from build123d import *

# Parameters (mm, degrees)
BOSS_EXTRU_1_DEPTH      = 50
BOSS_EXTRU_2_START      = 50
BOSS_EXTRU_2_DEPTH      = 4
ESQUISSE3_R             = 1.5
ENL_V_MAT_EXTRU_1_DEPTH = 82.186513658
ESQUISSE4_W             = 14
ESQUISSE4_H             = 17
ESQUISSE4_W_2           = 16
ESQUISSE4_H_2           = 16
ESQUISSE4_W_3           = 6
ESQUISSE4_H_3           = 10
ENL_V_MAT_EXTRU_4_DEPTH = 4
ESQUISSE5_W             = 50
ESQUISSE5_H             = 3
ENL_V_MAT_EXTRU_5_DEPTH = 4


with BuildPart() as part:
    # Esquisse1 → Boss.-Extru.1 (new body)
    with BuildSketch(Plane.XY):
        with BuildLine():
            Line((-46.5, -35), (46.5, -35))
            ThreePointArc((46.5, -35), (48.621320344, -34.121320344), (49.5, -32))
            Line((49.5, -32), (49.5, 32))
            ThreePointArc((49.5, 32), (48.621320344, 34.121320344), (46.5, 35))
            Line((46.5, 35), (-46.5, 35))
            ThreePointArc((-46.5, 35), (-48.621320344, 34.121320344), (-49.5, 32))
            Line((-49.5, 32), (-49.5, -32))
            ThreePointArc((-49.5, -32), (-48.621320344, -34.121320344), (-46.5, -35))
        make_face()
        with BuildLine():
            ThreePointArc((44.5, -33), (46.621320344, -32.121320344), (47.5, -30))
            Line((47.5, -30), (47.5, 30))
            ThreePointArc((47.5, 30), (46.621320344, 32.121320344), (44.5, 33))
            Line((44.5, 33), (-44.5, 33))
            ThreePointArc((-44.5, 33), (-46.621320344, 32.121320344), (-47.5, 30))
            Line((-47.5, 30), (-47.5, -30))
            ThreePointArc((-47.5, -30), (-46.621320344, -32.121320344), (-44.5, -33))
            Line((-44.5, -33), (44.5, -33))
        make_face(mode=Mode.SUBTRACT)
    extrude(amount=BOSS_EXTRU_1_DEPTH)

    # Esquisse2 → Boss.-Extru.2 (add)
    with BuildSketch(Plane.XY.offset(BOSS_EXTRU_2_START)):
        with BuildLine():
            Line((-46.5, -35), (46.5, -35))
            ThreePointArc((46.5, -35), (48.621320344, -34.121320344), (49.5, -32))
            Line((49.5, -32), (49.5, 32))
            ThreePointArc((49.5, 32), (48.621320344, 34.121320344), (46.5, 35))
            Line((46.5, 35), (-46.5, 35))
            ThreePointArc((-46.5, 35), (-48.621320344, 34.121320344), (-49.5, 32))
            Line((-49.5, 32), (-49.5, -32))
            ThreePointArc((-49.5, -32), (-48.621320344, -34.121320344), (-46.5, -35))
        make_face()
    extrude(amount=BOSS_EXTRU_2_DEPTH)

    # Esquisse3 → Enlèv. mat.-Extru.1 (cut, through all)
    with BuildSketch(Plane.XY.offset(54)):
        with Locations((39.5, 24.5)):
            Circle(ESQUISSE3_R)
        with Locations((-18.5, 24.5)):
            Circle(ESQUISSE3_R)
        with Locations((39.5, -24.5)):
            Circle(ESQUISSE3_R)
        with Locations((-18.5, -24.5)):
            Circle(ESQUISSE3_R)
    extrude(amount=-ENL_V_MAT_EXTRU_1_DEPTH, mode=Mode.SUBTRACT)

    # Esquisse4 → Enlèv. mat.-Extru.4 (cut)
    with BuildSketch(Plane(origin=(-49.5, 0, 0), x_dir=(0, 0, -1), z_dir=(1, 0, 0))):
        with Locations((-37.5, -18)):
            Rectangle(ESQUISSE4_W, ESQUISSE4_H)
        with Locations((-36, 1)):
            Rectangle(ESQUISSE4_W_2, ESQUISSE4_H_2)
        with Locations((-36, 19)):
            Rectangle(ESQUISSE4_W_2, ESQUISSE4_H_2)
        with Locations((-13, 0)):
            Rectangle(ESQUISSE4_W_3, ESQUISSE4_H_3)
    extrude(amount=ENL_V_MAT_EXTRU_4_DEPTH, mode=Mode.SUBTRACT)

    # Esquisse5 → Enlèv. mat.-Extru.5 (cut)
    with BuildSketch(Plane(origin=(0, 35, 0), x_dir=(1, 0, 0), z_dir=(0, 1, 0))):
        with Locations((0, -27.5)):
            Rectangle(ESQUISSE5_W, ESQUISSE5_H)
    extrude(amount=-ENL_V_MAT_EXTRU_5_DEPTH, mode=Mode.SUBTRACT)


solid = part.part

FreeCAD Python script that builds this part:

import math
import FreeCAD as App
import Part
import Sketcher

doc = App.newDocument("Part")
body = doc.addObject("PartDesign::Body", "Body")

sketch1 = body.newObject("Sketcher::SketchObject", "Sketch")
sketch1.AttachmentSupport = (doc.getObject("XY_Plane"), [""])
sketch1.MapMode = "FlatFace"
sketch1.addGeometry([
    Part.LineSegment(App.Vector(-46.5, -35, 0), App.Vector(46.5, -35, 0)),
    Part.ArcOfCircle(Part.Circle(App.Vector(46.5, -32, 0), App.Vector(0, 0, 1), 3), math.radians(-90), math.radians(0)),
    Part.LineSegment(App.Vector(49.5, -32, 0), App.Vector(49.5, 32, 0)),
    Part.ArcOfCircle(Part.Circle(App.Vector(46.5, 32, 0), App.Vector(0, 0, 1), 3), math.radians(0), math.radians(90)),
    Part.LineSegment(App.Vector(46.5, 35, 0), App.Vector(-46.5, 35, 0)),
    Part.ArcOfCircle(Part.Circle(App.Vector(-46.5, 32, 0), App.Vector(0, 0, 1), 3), math.radians(90), math.radians(180)),
    Part.LineSegment(App.Vector(-49.5, 32, 0), App.Vector(-49.5, -32, 0)),
    Part.ArcOfCircle(Part.Circle(App.Vector(-46.5, -32, 0), App.Vector(0, 0, 1), 3), math.radians(180), math.radians(270)),
    Part.ArcOfCircle(Part.Circle(App.Vector(44.5, -30, 0), App.Vector(0, 0, 1), 3), math.radians(-90), math.radians(0)),
    Part.LineSegment(App.Vector(44.5, -33, 0), App.Vector(-44.5, -33, 0)),
    Part.ArcOfCircle(Part.Circle(App.Vector(-44.5, -30, 0), App.Vector(0, 0, 1), 3), math.radians(180), math.radians(270)),
    Part.LineSegment(App.Vector(-47.5, -30, 0), App.Vector(-47.5, 30, 0)),
    Part.ArcOfCircle(Part.Circle(App.Vector(-44.5, 30, 0), App.Vector(0, 0, 1), 3), math.radians(90), math.radians(180)),
    Part.LineSegment(App.Vector(-44.5, 33, 0), App.Vector(44.5, 33, 0)),
    Part.ArcOfCircle(Part.Circle(App.Vector(44.5, 30, 0), App.Vector(0, 0, 1), 3), math.radians(0), math.radians(90)),
    Part.LineSegment(App.Vector(47.5, 30, 0), App.Vector(47.5, -30, 0)),
], False)
sketch1.addConstraint([
    Sketcher.Constraint("Tangent", 0, 2, 1, 1),
    Sketcher.Constraint("Tangent", 1, 2, 2, 1),
    Sketcher.Constraint("Tangent", 2, 2, 3, 1),
    Sketcher.Constraint("Tangent", 3, 2, 4, 1),
    Sketcher.Constraint("Tangent", 4, 2, 5, 1),
    Sketcher.Constraint("Tangent", 5, 2, 6, 1),
    Sketcher.Constraint("Tangent", 6, 2, 7, 1),
    Sketcher.Constraint("Tangent", 7, 2, 0, 1),
    Sketcher.Constraint("Tangent", 8, 1, 9, 1),
    Sketcher.Constraint("Tangent", 9, 2, 10, 2),
    Sketcher.Constraint("Tangent", 10, 1, 11, 1),
    Sketcher.Constraint("Tangent", 11, 2, 12, 2),
    Sketcher.Constraint("Tangent", 12, 1, 13, 1),
    Sketcher.Constraint("Tangent", 13, 2, 14, 2),
    Sketcher.Constraint("Tangent", 14, 1, 15, 1),
    Sketcher.Constraint("Tangent", 15, 2, 8, 2),
    Sketcher.Constraint("Horizontal", 0),
    Sketcher.Constraint("Vertical", 2),
    Sketcher.Constraint("Horizontal", 4),
    Sketcher.Constraint("Vertical", 6),
    Sketcher.Constraint("Horizontal", 9),
    Sketcher.Constraint("Vertical", 11),
    Sketcher.Constraint("Horizontal", 13),
    Sketcher.Constraint("Vertical", 15),
    Sketcher.Constraint("Equal", 1, 3),
    Sketcher.Constraint("Equal", 3, 5),
    Sketcher.Constraint("Equal", 5, 7),
    Sketcher.Constraint("Equal", 7, 8),
    Sketcher.Constraint("Equal", 8, 10),
    Sketcher.Constraint("Equal", 10, 12),
    Sketcher.Constraint("Equal", 12, 14),
    Sketcher.Constraint("Symmetric", 1, 3, 5, 3, -1, 1),
    Sketcher.Constraint("Symmetric", 8, 3, 12, 3, -1, 1),
    Sketcher.Constraint("Radius", 1, 3.0),
    Sketcher.Constraint("DistanceX", 0, 1, 0, 2, 93.0),
    Sketcher.Constraint("DistanceX", 9, 2, 9, 1, 89.0),
    Sketcher.Constraint("DistanceY", 2, 1, 2, 2, 64.0),
    Sketcher.Constraint("DistanceY", 11, 1, 11, 2, 60.0),
])
pad1 = body.newObject("PartDesign::Pad", "Pad")
pad1.Profile = sketch1
pad1.Length = 50

sketch2 = body.newObject("Sketcher::SketchObject", "Sketch001")
sketch2.AttachmentSupport = (doc.getObject("XY_Plane"), [""])
sketch2.MapMode = "FlatFace"
sketch2.AttachmentOffset = App.Placement(App.Vector(0, 0, 50), App.Rotation())
sketch2.addGeometry([
    Part.LineSegment(App.Vector(-46.5, -35, 0), App.Vector(46.5, -35, 0)),
    Part.ArcOfCircle(Part.Circle(App.Vector(46.5, -32, 0), App.Vector(0, 0, 1), 3), math.radians(-90), math.radians(0)),
    Part.LineSegment(App.Vector(49.5, -32, 0), App.Vector(49.5, 32, 0)),
    Part.ArcOfCircle(Part.Circle(App.Vector(46.5, 32, 0), App.Vector(0, 0, 1), 3), math.radians(0), math.radians(90)),
    Part.LineSegment(App.Vector(46.5, 35, 0), App.Vector(-46.5, 35, 0)),
    Part.ArcOfCircle(Part.Circle(App.Vector(-46.5, 32, 0), App.Vector(0, 0, 1), 3), math.radians(90), math.radians(180)),
    Part.LineSegment(App.Vector(-49.5, 32, 0), App.Vector(-49.5, -32, 0)),
    Part.ArcOfCircle(Part.Circle(App.Vector(-46.5, -32, 0), App.Vector(0, 0, 1), 3), math.radians(180), math.radians(270)),
], False)
sketch2.addConstraint([
    Sketcher.Constraint("Tangent", 0, 2, 1, 1),
    Sketcher.Constraint("Tangent", 1, 2, 2, 1),
    Sketcher.Constraint("Tangent", 2, 2, 3, 1),
    Sketcher.Constraint("Tangent", 3, 2, 4, 1),
    Sketcher.Constraint("Tangent", 4, 2, 5, 1),
    Sketcher.Constraint("Tangent", 5, 2, 6, 1),
    Sketcher.Constraint("Tangent", 6, 2, 7, 1),
    Sketcher.Constraint("Tangent", 7, 2, 0, 1),
    Sketcher.Constraint("Horizontal", 0),
    Sketcher.Constraint("Vertical", 2),
    Sketcher.Constraint("Horizontal", 4),
    Sketcher.Constraint("Vertical", 6),
    Sketcher.Constraint("Equal", 1, 3),
    Sketcher.Constraint("Equal", 3, 5),
    Sketcher.Constraint("Equal", 5, 7),
    Sketcher.Constraint("Symmetric", 1, 3, 5, 3, -1, 1),
    Sketcher.Constraint("Radius", 1, 3.0),
    Sketcher.Constraint("DistanceX", 0, 1, 0, 2, 93.0),
    Sketcher.Constraint("DistanceY", 2, 1, 2, 2, 64.0),
])
pad2 = body.newObject("PartDesign::Pad", "Pad001")
pad2.Profile = sketch2
pad2.Length = 4

sketch3 = body.newObject("Sketcher::SketchObject", "Sketch002")
sketch3.AttachmentSupport = (doc.getObject("XY_Plane"), [""])
sketch3.MapMode = "FlatFace"
sketch3.AttachmentOffset = App.Placement(App.Vector(0, 0, 54), App.Rotation())
sketch3.addGeometry([
    Part.Circle(App.Vector(39.5, 24.5, 0), App.Vector(0, 0, 1), 1.5),
    Part.Circle(App.Vector(-18.5, 24.5, 0), App.Vector(0, 0, 1), 1.5),
    Part.Circle(App.Vector(39.5, -24.5, 0), App.Vector(0, 0, 1), 1.5),
    Part.Circle(App.Vector(-18.5, -24.5, 0), App.Vector(0, 0, 1), 1.5),
], False)
sketch3.addConstraint([
    Sketcher.Constraint("Equal", 0, 1),
    Sketcher.Constraint("Equal", 1, 2),
    Sketcher.Constraint("Equal", 2, 3),
    Sketcher.Constraint("Symmetric", 0, 3, 2, 3, -1),
    Sketcher.Constraint("Symmetric", 1, 3, 3, 3, -1),
    Sketcher.Constraint("Horizontal", 0, 3, 1, 3),
    Sketcher.Constraint("Diameter", 0, 3.0),
    Sketcher.Constraint("DistanceX", 1, 3, 0, 3, 58.0),
    Sketcher.Constraint("DistanceY", 2, 3, 0, 3, 49.0),
    Sketcher.Constraint("DistanceX", -1, 1, 0, 3, 39.5),
])
pocket1 = body.newObject("PartDesign::Pocket", "Pocket")
pocket1.Profile = sketch3
pocket1.Type = "ThroughAll"

sketch4 = body.newObject("Sketcher::SketchObject", "Sketch003")
sketch4.AttachmentSupport = (doc.getObject("YZ_Plane"), [""])
sketch4.MapMode = "FlatFace"
sketch4.AttachmentOffset = App.Placement(App.Vector(0, 0, -49.5), App.Rotation())
sketch4.addGeometry([
    Part.LineSegment(App.Vector(-10, 44, 0), App.Vector(-26, 44, 0)),
    Part.LineSegment(App.Vector(-26, 44, 0), App.Vector(-26, 30, 0)),
    Part.LineSegment(App.Vector(-26, 30, 0), App.Vector(-10, 30, 0)),
    Part.LineSegment(App.Vector(-10, 30, 0), App.Vector(-10, 44, 0)),
    Part.LineSegment(App.Vector(9, 44, 0), App.Vector(-7, 44, 0)),
    Part.LineSegment(App.Vector(-7, 44, 0), App.Vector(-7, 28, 0)),
    Part.LineSegment(App.Vector(-7, 28, 0), App.Vector(9, 28, 0)),
    Part.LineSegment(App.Vector(9, 28, 0), App.Vector(9, 44, 0)),
    Part.LineSegment(App.Vector(27, 44, 0), App.Vector(11, 44, 0)),
    Part.LineSegment(App.Vector(11, 44, 0), App.Vector(11, 28, 0)),
    Part.LineSegment(App.Vector(11, 28, 0), App.Vector(27, 28, 0)),
    Part.LineSegment(App.Vector(27, 28, 0), App.Vector(27, 44, 0)),
    Part.LineSegment(App.Vector(5, 16, 0), App.Vector(-5, 16, 0)),
    Part.LineSegment(App.Vector(-5, 16, 0), App.Vector(-5, 10, 0)),
    Part.LineSegment(App.Vector(-5, 10, 0), App.Vector(5, 10, 0)),
    Part.LineSegment(App.Vector(5, 10, 0), App.Vector(5, 16, 0)),
], False)
sketch4.addConstraint([
    Sketcher.Constraint("Coincident", 0, 2, 1, 1),
    Sketcher.Constraint("Coincident", 1, 2, 2, 1),
    Sketcher.Constraint("Coincident", 2, 2, 3, 1),
    Sketcher.Constraint("Coincident", 3, 2, 0, 1),
    Sketcher.Constraint("Coincident", 4, 2, 5, 1),
    Sketcher.Constraint("Coincident", 5, 2, 6, 1),
    Sketcher.Constraint("Coincident", 6, 2, 7, 1),
    Sketcher.Constraint("Coincident", 7, 2, 4, 1),
    Sketcher.Constraint("Coincident", 8, 2, 9, 1),
    Sketcher.Constraint("Coincident", 9, 2, 10, 1),
    Sketcher.Constraint("Coincident", 10, 2, 11, 1),
    Sketcher.Constraint("Coincident", 11, 2, 8, 1),
    Sketcher.Constraint("Coincident", 12, 2, 13, 1),
    Sketcher.Constraint("Coincident", 13, 2, 14, 1),
    Sketcher.Constraint("Coincident", 14, 2, 15, 1),
    Sketcher.Constraint("Coincident", 15, 2, 12, 1),
    Sketcher.Constraint("Horizontal", 0),
    Sketcher.Constraint("Vertical", 1),
    Sketcher.Constraint("Horizontal", 2),
    Sketcher.Constraint("Vertical", 3),
    Sketcher.Constraint("Horizontal", 4),
    Sketcher.Constraint("Vertical", 5),
    Sketcher.Constraint("Horizontal", 6),
    Sketcher.Constraint("Vertical", 7),
    Sketcher.Constraint("Horizontal", 8),
    Sketcher.Constraint("Vertical", 9),
    Sketcher.Constraint("Horizontal", 10),
    Sketcher.Constraint("Vertical", 11),
    Sketcher.Constraint("Horizontal", 12),
    Sketcher.Constraint("Vertical", 13),
    Sketcher.Constraint("Horizontal", 14),
    Sketcher.Constraint("Vertical", 15),
    Sketcher.Constraint("Horizontal", 7, 2, 8, 2),
    Sketcher.Constraint("Horizontal", 6, 2, 9, 2),
    Sketcher.Constraint("Equal", 6, 8),
    Sketcher.Constraint("Equal", 10, 5),
    Sketcher.Constraint("DistanceX", 0, 2, 0, 1, 17.0),
    Sketcher.Constraint("DistanceX", 4, 2, 4, 1, 16.0),
    Sketcher.Constraint("DistanceX", 12, 2, 12, 1, 10.0),
    Sketcher.Constraint("DistanceY", 1, 2, 1, 1, 14.0),
    Sketcher.Constraint("DistanceY", 13, 2, 13, 1, 6.0),
    Sketcher.Constraint("DistanceX", 4, 2, -1, 1, 7.0),
    Sketcher.Constraint("DistanceY", -1, 1, 4, 2, 44.0),
    Sketcher.Constraint("DistanceX", -1, 1, 8, 2, 11.0),
    Sketcher.Constraint("DistanceX", 12, 2, -1, 1, 5.0),
    Sketcher.Constraint("DistanceY", -1, 1, 12, 2, 16.0),
    Sketcher.Constraint("DistanceX", 0, 2, -1, 1, 26.5),
    Sketcher.Constraint("DistanceY", -1, 1, 0, 2, 44.5),
])
pocket2 = body.newObject("PartDesign::Pocket", "Pocket001")
pocket2.Profile = sketch4
pocket2.Length = 4
pocket2.Reversed = True

sketch5 = body.newObject("Sketcher::SketchObject", "Sketch004")
sketch5.AttachmentSupport = (doc.getObject("XZ_Plane"), [""])
sketch5.MapMode = "FlatFace"
sketch5.AttachmentOffset = App.Placement(App.Vector(0, 0, -35), App.Rotation())
sketch5.addGeometry([
    Part.LineSegment(App.Vector(-25, 26, 0), App.Vector(-25, 29, 0)),
    Part.LineSegment(App.Vector(-25, 29, 0), App.Vector(25, 29, 0)),
    Part.LineSegment(App.Vector(25, 29, 0), App.Vector(25, 26, 0)),
    Part.LineSegment(App.Vector(25, 26, 0), App.Vector(-25, 26, 0)),
], False)
sketch5.addConstraint([
    Sketcher.Constraint("Coincident", 0, 2, 1, 1),
    Sketcher.Constraint("Coincident", 1, 2, 2, 1),
    Sketcher.Constraint("Coincident", 2, 2, 3, 1),
    Sketcher.Constraint("Coincident", 3, 2, 0, 1),
    Sketcher.Constraint("Vertical", 0),
    Sketcher.Constraint("Horizontal", 1),
    Sketcher.Constraint("Vertical", 2),
    Sketcher.Constraint("Horizontal", 3),
    Sketcher.Constraint("DistanceX", 1, 1, 1, 2, 50.0),
    Sketcher.Constraint("DistanceY", 0, 1, 0, 2, 3.0),
    Sketcher.Constraint("DistanceX", 0, 2, -1, 1, 25.0),
    Sketcher.Constraint("DistanceY", -1, 1, 0, 2, 29.0),
])
pocket3 = body.newObject("PartDesign::Pocket", "Pocket002")
pocket3.Profile = sketch5
pocket3.Length = 4
pocket3.Reversed = True

doc.recompute()
